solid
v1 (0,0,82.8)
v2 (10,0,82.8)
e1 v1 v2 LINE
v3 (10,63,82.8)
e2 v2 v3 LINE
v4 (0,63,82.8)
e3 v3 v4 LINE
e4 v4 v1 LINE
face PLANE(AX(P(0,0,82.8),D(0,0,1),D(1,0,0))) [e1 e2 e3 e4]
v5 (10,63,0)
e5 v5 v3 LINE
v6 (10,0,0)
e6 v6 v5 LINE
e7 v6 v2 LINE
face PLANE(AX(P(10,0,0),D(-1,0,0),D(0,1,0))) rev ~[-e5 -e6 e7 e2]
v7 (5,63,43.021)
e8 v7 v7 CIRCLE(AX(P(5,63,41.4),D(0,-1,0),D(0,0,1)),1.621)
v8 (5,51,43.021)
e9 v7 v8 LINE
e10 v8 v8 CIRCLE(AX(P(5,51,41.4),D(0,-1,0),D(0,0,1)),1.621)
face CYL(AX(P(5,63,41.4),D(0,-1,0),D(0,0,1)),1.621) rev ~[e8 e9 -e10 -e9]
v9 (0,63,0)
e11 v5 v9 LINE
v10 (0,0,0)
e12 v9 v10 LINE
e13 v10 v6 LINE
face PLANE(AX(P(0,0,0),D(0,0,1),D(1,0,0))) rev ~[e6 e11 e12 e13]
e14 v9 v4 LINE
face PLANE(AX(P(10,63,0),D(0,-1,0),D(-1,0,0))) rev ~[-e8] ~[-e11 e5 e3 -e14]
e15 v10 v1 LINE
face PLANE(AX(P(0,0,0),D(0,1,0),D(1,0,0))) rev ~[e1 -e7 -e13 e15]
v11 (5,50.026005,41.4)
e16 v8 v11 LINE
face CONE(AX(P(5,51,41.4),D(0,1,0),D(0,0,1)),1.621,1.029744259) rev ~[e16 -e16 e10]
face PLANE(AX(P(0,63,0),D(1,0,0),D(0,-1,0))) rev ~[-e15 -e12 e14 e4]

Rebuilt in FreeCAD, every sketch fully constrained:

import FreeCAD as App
import Part
import Sketcher
from FreeCAD import Vector


def add_polygon(sketch, points):
    """Adds a closed chain of lines whose ends are joined by coincident constraints."""
    first, n = sketch.GeometryCount, len(points)
    for a, b in zip(points, points[1:] + points[:1]):
        sketch.addGeometry(Part.LineSegment(App.Vector(*a, 0), App.Vector(*b, 0)), False)
    for i in range(n):
        sketch.addConstraint(Sketcher.Constraint("Coincident", first + i, 2, first + (i + 1) % n, 1))

doc = App.newDocument("Part")
params = doc.addObject("Spreadsheet::Sheet", "Params")
for row, (alias, value) in enumerate([
    ("sketch1_width", "10 mm"),
    ("sketch1_height", "63 mm"),
    ("pad1_length", "82.8 mm"),
    ("hole_diameter", "3.242 mm"),
    ("hole_depth", "12 mm"),
], start=1):
    params.set(f"A{row}", alias)
    params.set(f"B{row}", "=" + value)
    params.setAlias(f"B{row}", alias)

body = doc.addObject("PartDesign::Body", "Body")

# Sketch on XY plane
sketch1 = body.newObject("Sketcher::SketchObject", "Sketch")
sketch1.AttachmentSupport = (doc.getObject("XY_Plane"), [""])
sketch1.MapMode = "FlatFace"
add_polygon(sketch1, [(0, 63), (0, 0), (10, 0), (10, 63)])  # lines 0-3
sketch1.addConstraint([
    Sketcher.Constraint("Vertical", 0),
    Sketcher.Constraint("Horizontal", 1),
    Sketcher.Constraint("Vertical", 2),
    Sketcher.Constraint("Horizontal", 3),
    Sketcher.Constraint("Coincident", 0, 2, -1, 1),
    Sketcher.Constraint("DistanceX", 1, 1, 1, 2, 10.0),
    Sketcher.Constraint("DistanceY", 0, 2, 0, 1, 63.0),
])
sketch1.setExpression("Constraints[9]", "Params.sketch1_width")
sketch1.setExpression("Constraints[10]", "Params.sketch1_height")
pad1 = body.newObject("PartDesign::Pad", "Pad")
pad1.Profile = sketch1
pad1.setExpression("Length", "Params.pad1_length")

# Sketch on XZ plane
sketch2 = body.newObject("Sketcher::SketchObject", "Sketch001")
sketch2.AttachmentSupport = (doc.getObject("XZ_Plane"), [""])
sketch2.MapMode = "FlatFace"
sketch2.AttachmentOffset = App.Placement(Vector(0, 0, -63), App.Rotation())
sketch2.addGeometry(Part.Circle(Vector(5, 41.4, 0), Vector(0, 0, 1), 1.6), False)
sketch2.addConstraint([
    Sketcher.Constraint("Diameter", 0, 3.242),
    Sketcher.Constraint("DistanceX", -1, 1, 0, 3, 5.0),
    Sketcher.Constraint("DistanceY", -1, 1, 0, 3, 41.4),
])
doc.recompute()
hole = body.newObject("PartDesign::Hole", "Hole")
hole.Profile = sketch2
hole.ThreadType = "None"
hole.setExpression("Diameter", "Params.hole_diameter")
hole.DepthType = "Dimension"
hole.setExpression("Depth", "Params.hole_depth")
hole.DrillPoint = "Angled"
hole.DrillPointAngle = 118
hole.Reversed = True

doc.recompute()
